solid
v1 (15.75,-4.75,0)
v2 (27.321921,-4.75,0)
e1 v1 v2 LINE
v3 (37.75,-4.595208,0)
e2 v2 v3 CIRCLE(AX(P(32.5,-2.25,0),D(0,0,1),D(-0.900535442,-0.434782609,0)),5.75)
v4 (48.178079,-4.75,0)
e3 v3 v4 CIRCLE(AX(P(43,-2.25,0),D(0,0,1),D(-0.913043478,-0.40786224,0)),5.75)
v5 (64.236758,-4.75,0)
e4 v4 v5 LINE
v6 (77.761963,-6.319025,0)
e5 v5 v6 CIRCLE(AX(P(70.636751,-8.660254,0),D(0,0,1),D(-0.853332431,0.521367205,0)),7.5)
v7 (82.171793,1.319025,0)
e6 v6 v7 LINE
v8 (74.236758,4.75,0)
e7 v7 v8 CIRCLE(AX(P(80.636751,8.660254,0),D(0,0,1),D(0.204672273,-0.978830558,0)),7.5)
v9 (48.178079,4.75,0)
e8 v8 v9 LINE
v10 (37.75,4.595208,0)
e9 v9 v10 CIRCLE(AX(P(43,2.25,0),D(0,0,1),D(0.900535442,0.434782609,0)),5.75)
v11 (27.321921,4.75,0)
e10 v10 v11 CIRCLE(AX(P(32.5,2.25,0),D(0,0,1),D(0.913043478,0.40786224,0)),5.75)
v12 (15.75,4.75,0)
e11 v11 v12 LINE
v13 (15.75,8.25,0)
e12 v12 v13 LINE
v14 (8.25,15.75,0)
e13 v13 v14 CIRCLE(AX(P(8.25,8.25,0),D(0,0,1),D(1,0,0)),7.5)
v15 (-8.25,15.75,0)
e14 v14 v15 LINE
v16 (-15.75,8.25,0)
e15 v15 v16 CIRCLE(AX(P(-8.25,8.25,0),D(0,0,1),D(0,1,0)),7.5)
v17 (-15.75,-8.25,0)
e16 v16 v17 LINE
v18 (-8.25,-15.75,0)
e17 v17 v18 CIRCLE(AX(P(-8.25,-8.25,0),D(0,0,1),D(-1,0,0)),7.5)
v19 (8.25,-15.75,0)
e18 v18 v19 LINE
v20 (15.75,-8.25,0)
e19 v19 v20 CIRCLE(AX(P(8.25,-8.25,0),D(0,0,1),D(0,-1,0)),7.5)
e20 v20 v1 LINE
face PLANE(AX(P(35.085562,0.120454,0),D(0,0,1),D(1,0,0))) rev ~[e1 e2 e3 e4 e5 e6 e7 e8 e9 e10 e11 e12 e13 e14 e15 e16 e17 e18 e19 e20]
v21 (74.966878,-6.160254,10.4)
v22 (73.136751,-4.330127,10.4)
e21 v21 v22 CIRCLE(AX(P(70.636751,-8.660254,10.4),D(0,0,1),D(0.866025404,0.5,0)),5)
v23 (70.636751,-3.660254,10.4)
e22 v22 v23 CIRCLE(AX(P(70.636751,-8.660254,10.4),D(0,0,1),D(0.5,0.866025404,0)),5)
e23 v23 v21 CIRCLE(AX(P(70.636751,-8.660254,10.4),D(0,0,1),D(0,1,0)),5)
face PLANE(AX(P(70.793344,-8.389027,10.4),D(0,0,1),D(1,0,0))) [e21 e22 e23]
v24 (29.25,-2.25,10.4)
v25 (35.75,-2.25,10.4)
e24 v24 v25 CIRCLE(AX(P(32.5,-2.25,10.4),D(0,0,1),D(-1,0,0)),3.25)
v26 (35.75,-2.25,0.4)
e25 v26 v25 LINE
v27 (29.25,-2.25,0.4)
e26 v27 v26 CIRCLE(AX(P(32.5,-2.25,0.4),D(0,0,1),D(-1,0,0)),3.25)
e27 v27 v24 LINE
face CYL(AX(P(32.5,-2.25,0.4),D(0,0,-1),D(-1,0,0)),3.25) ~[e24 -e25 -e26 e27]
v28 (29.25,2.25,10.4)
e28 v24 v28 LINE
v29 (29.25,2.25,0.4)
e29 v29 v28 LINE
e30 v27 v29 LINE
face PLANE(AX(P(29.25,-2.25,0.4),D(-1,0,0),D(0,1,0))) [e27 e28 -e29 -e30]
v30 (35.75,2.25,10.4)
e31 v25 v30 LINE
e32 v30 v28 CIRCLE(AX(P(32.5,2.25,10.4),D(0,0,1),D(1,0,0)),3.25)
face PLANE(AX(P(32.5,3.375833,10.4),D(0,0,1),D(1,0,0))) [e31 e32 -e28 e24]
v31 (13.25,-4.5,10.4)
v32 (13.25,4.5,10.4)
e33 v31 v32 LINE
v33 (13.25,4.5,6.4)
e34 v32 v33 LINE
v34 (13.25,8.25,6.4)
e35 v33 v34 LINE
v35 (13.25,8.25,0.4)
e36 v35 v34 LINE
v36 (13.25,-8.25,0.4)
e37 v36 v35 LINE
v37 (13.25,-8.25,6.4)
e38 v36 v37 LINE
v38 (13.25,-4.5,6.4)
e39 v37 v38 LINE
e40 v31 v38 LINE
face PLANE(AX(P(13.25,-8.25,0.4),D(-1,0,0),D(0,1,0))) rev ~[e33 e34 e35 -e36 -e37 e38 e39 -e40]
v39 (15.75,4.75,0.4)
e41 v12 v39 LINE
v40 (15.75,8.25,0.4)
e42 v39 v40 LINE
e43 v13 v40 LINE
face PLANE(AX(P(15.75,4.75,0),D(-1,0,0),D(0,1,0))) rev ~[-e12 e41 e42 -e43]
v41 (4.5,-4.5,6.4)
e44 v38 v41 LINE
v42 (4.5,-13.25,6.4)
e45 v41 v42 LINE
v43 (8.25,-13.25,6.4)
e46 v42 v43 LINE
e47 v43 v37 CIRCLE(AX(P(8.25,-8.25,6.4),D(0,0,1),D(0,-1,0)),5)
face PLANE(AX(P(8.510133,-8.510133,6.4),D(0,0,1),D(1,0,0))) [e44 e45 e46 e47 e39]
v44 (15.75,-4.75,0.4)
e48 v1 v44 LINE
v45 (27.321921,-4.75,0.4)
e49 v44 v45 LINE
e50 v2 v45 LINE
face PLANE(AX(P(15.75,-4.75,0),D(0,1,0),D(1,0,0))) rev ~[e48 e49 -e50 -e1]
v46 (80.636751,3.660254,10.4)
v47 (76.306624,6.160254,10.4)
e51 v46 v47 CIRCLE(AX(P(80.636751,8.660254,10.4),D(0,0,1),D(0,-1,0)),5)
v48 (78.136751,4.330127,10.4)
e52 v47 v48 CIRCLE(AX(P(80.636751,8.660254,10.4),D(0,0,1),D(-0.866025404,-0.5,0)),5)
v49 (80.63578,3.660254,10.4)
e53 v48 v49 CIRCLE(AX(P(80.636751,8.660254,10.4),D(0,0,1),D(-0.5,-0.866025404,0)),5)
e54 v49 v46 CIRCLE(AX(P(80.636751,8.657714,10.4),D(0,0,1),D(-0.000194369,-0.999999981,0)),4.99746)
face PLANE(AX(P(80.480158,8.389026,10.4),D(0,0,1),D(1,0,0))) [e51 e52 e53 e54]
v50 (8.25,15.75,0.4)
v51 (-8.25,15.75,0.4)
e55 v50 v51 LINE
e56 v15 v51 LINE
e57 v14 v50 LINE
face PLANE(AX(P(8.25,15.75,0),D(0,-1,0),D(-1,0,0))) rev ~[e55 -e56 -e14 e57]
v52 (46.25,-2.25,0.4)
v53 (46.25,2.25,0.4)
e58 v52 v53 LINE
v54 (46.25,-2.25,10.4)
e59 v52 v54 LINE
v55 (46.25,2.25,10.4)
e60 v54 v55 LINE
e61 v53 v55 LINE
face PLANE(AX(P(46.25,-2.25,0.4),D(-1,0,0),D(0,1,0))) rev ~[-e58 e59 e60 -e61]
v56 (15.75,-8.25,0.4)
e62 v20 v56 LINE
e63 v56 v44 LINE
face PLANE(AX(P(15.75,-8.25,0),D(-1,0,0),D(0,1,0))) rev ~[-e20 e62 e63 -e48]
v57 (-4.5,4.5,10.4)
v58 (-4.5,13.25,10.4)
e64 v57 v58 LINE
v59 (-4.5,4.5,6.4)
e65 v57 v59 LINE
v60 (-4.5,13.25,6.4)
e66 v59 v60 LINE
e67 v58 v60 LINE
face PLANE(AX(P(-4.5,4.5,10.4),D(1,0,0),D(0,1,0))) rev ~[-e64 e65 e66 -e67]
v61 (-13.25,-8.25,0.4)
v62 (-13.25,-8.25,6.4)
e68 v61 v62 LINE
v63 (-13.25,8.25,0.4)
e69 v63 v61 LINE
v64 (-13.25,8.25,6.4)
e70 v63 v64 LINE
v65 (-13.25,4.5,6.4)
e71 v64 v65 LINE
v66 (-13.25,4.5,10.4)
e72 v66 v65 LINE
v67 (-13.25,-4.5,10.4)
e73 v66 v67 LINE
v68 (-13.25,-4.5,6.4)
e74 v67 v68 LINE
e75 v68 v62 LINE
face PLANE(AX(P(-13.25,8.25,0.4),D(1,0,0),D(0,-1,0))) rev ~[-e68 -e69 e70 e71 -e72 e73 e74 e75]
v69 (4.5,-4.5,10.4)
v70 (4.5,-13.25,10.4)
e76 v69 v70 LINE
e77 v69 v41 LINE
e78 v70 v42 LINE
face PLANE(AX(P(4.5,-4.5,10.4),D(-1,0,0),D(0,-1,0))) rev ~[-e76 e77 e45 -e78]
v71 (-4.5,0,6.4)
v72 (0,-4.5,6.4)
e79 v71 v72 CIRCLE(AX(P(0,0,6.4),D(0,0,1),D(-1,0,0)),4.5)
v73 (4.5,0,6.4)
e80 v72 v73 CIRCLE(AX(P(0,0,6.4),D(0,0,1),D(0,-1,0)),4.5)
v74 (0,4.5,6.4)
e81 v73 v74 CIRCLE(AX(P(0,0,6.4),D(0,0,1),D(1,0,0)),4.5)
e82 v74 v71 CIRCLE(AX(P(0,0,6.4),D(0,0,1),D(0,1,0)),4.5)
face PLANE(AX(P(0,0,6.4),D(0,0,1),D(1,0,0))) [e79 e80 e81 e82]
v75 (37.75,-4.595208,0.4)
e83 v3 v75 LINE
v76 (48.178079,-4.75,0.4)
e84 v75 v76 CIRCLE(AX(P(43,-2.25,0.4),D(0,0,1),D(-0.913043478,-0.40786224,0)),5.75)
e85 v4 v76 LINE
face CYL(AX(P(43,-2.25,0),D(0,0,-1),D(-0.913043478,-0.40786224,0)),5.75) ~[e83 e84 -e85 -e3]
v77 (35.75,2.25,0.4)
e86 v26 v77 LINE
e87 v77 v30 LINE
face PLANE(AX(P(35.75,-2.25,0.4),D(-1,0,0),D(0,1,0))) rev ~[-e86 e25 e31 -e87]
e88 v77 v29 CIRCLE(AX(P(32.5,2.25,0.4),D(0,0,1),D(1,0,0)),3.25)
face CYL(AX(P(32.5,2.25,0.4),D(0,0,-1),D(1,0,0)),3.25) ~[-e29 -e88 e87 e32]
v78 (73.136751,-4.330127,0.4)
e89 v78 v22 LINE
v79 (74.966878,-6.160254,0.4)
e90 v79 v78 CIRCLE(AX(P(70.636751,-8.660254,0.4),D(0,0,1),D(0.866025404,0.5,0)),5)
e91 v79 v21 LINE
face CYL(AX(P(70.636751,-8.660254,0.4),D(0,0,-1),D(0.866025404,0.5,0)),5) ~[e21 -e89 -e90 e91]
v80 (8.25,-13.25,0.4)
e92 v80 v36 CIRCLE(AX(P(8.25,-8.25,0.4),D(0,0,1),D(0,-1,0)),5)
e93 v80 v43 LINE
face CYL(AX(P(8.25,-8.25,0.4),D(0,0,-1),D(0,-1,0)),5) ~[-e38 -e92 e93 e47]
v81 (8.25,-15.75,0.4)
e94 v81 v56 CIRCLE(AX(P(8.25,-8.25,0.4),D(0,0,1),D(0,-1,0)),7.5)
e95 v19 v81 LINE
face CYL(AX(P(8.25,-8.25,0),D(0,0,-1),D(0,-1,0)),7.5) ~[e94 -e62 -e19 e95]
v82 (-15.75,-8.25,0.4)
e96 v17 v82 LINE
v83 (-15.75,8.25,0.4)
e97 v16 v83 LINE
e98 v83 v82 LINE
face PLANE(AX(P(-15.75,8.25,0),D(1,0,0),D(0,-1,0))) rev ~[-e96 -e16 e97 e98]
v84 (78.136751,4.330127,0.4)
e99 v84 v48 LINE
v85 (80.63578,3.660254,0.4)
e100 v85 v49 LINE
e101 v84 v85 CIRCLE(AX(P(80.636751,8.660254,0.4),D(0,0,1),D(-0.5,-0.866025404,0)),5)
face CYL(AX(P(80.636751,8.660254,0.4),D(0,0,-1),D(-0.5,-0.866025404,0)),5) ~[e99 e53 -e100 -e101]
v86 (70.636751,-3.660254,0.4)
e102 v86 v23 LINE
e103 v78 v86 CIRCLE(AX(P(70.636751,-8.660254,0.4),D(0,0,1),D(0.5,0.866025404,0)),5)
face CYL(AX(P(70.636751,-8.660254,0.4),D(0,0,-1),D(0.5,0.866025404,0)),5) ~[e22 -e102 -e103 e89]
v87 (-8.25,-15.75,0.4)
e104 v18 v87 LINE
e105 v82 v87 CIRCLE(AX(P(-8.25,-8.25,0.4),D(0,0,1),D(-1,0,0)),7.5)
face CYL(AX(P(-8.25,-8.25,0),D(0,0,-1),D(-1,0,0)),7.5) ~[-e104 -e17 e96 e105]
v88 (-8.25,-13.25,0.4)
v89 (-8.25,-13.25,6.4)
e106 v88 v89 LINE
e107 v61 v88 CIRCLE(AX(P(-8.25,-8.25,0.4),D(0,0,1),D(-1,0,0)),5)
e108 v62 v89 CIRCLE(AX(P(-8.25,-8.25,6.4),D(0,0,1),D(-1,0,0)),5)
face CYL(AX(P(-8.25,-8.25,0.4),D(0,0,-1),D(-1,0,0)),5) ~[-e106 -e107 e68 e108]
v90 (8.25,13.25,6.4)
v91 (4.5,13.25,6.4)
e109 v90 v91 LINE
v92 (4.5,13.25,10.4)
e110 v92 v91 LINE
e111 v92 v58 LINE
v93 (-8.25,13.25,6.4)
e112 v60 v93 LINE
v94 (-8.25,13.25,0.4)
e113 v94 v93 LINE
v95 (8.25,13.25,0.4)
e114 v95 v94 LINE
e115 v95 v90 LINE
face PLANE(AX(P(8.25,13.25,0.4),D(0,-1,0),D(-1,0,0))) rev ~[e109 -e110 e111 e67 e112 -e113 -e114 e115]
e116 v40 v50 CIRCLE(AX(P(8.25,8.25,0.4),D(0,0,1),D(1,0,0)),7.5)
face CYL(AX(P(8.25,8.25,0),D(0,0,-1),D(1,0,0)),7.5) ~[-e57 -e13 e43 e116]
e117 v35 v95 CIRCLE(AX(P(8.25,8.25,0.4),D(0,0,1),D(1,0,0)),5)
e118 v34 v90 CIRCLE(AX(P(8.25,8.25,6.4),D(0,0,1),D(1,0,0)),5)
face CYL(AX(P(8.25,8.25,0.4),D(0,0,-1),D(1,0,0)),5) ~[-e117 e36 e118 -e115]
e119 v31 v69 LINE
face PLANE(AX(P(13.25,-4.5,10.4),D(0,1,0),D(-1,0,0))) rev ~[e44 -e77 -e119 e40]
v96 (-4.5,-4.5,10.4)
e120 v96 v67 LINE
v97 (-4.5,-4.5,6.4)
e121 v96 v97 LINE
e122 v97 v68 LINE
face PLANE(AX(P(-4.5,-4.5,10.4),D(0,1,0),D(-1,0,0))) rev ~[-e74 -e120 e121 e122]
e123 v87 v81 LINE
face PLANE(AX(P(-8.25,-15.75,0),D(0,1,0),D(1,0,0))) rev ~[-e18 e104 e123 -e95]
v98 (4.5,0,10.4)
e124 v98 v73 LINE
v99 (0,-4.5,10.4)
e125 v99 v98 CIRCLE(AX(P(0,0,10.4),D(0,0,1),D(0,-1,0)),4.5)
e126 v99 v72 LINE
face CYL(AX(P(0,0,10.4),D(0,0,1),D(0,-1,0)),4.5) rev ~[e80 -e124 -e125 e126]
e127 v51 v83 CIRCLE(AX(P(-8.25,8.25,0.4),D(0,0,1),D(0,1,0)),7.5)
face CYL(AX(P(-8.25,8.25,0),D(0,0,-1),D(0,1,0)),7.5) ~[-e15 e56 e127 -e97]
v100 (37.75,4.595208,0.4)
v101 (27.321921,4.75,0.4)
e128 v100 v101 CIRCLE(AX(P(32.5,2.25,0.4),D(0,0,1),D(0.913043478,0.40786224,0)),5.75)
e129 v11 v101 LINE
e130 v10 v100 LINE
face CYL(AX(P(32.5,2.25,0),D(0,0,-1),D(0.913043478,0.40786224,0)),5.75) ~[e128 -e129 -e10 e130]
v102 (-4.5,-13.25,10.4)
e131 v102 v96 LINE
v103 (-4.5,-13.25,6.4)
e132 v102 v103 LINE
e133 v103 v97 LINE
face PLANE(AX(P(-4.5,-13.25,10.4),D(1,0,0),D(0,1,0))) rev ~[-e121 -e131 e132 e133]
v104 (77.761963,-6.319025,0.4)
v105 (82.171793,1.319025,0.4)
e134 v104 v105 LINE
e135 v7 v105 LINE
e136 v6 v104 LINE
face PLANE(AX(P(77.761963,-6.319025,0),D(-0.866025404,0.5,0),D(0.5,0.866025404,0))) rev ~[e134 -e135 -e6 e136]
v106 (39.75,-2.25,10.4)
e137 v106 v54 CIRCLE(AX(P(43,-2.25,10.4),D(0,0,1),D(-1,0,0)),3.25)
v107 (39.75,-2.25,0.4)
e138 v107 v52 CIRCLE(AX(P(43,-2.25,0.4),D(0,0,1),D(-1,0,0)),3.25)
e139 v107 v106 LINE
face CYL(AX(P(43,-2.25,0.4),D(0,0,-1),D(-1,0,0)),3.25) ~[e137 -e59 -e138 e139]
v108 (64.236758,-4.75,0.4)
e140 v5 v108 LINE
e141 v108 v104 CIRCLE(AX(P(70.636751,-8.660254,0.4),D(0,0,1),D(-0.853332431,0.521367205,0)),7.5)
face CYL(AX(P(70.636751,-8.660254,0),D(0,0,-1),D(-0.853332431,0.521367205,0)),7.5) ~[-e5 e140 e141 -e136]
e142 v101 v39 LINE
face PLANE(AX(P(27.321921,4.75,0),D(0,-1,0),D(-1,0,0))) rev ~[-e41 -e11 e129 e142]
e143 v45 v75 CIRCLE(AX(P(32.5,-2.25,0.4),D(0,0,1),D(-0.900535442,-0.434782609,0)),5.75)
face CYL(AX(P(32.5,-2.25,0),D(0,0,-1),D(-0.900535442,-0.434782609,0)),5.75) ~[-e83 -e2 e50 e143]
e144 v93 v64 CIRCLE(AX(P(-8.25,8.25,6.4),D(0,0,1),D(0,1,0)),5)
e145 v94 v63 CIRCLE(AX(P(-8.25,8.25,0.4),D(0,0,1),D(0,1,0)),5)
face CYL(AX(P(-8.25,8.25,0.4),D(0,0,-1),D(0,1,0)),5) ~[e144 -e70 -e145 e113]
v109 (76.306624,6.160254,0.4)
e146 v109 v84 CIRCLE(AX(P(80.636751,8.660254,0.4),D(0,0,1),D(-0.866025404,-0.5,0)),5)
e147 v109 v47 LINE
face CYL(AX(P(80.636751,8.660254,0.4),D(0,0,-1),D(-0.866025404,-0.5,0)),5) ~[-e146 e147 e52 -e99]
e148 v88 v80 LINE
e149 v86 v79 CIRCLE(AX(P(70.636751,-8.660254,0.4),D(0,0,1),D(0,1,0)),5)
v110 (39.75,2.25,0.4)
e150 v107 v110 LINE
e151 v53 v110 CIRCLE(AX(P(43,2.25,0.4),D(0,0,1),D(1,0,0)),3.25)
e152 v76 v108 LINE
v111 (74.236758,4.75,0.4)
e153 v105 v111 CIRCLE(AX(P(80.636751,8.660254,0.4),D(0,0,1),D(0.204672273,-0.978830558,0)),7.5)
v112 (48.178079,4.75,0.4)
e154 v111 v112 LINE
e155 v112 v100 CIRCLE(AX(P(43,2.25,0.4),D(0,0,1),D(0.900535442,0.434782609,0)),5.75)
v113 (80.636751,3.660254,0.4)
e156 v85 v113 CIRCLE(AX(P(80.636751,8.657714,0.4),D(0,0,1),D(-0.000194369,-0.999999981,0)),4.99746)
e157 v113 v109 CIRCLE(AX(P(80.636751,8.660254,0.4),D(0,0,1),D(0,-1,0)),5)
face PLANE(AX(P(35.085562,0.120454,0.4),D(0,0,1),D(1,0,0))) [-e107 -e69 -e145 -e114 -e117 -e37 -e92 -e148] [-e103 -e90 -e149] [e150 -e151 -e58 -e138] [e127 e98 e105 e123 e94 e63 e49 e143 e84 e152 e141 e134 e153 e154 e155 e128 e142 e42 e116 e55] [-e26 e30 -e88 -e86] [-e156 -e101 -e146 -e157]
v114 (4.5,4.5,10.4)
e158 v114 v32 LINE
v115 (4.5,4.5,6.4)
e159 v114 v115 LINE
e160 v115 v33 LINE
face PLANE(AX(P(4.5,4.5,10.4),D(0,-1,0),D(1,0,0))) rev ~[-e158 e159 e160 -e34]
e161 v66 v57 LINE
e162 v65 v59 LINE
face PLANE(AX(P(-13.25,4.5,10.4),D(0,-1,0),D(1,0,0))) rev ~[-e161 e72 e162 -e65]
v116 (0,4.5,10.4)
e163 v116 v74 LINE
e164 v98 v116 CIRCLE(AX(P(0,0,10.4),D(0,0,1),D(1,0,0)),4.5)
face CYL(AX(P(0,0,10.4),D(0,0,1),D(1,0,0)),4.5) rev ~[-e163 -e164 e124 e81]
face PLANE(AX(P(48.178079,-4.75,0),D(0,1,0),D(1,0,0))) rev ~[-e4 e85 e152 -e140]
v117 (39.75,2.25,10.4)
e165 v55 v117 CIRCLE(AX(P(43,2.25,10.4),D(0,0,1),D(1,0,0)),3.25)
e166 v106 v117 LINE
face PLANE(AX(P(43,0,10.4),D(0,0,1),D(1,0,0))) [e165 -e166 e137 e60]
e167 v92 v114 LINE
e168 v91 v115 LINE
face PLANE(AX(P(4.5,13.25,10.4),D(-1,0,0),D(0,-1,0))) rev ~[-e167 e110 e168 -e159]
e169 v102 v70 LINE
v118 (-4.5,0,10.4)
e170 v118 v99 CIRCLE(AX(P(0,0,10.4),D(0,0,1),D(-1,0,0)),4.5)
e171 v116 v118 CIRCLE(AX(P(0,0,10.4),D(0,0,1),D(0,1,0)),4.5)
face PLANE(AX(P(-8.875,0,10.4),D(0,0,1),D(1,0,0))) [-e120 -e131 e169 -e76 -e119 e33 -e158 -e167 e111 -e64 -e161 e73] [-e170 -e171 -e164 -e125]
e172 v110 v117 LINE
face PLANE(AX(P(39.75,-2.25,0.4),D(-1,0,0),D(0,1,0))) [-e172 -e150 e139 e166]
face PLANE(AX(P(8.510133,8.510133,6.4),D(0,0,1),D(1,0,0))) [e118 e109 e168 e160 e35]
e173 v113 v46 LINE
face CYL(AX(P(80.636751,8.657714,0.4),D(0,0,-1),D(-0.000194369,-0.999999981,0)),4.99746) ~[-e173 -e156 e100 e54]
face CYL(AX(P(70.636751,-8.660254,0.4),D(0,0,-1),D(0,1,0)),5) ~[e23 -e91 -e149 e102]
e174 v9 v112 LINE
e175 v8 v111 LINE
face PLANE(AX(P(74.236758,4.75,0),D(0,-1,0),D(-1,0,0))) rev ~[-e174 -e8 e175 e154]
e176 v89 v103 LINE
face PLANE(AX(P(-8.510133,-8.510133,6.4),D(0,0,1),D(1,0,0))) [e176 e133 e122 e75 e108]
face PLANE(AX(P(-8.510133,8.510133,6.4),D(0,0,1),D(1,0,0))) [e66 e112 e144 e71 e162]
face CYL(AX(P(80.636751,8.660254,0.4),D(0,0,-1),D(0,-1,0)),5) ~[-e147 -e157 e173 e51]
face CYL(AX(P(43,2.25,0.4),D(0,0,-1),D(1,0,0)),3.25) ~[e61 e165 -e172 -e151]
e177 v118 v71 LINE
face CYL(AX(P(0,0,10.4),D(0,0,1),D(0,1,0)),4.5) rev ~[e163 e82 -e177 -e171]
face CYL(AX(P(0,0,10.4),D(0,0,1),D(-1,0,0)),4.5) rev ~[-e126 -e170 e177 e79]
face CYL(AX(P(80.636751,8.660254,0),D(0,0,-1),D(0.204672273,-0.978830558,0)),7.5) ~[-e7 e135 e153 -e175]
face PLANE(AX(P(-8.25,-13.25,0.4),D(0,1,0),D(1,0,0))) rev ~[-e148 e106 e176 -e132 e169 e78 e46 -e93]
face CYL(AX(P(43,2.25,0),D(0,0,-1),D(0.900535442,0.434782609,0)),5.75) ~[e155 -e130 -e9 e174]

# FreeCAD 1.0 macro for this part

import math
import FreeCAD as App
import Part
import Sketcher

V = App.Vector
Q = App.Units.Quantity

doc = App.newDocument("Part")
body = doc.addObject("PartDesign::Body", "Body")

sketch1 = body.newObject("Sketcher::SketchObject", "Sketch")
sketch1.AttachmentSupport = (doc.getObject("XY_Plane"), [""])
sketch1.MapMode = "FlatFace"
sketch1.addGeometry([
    Part.LineSegment(V(15.8, 4.8, 0), V(15.8, 8.2, 0)),
    Part.ArcOfCircle(Part.Circle(V(8.2, 8.2, 0), V(0, 0, 1), 7.5), math.radians(0), math.radians(90)),
    Part.LineSegment(V(8.2, 15.8, 0), V(-8.2, 15.8, 0)),
    Part.ArcOfCircle(Part.Circle(V(-8.2, 8.2, 0), V(0, 0, 1), 7.5), math.radians(90), math.radians(180)),
    Part.LineSegment(V(-15.8, 8.2, 0), V(-15.8, -8.2, 0)),
    Part.ArcOfCircle(Part.Circle(V(-8.2, -8.2, 0), V(0, 0, 1), 7.5), math.radians(180), math.radians(270)),
    Part.LineSegment(V(-8.2, -15.8, 0), V(8.2, -15.8, 0)),
    Part.ArcOfCircle(Part.Circle(V(8.2, -8.2, 0), V(0, 0, 1), 7.5), math.radians(-90), math.radians(0)),
    Part.LineSegment(V(15.8, -8.2, 0), V(15.8, -4.8, 0)),
    Part.LineSegment(V(15.8, -4.8, 0), V(27.3, -4.8, 0)),
    Part.ArcOfCircle(Part.Circle(V(32.5, -2.2, 0), V(0, 0, 1), 5.8), math.radians(-154), math.radians(-24)),
    Part.ArcOfCircle(Part.Circle(V(43, -2.2, 0), V(0, 0, 1), 5.8), math.radians(-156), math.radians(-26)),
    Part.LineSegment(V(48.2, -4.8, 0), V(64.2, -4.8, 0)),
    Part.ArcOfCircle(Part.Circle(V(70.6, -8.7, 0), V(0, 0, 1), 7.5), math.radians(149), math.radians(378)),
    Part.LineSegment(V(77.8, -6.3, 0), V(82.2, 1.3, 0)),
    Part.ArcOfCircle(Part.Circle(V(80.6, 8.7, 0), V(0, 0, 1), 7.5), math.radians(-78), math.radians(211)),
    Part.LineSegment(V(74.2, 4.8, 0), V(48.2, 4.8, 0)),
    Part.ArcOfCircle(Part.Circle(V(43, 2.2, 0), V(0, 0, 1), 5.8), math.radians(26), math.radians(156)),
    Part.ArcOfCircle(Part.Circle(V(32.5, 2.2, 0), V(0, 0, 1), 5.8), math.radians(24), math.radians(154)),
    Part.LineSegment(V(27.3, 4.8, 0), V(15.8, 4.8, 0)),
], False)
sketch1.addConstraint([
    Sketcher.Constraint("Tangent", 0, 2, 1, 1),
    Sketcher.Constraint("Tangent", 1, 2, 2, 1),
    Sketcher.Constraint("Tangent", 2, 2, 3, 1),
    Sketcher.Constraint("Tangent", 3, 2, 4, 1),
    Sketcher.Constraint("Tangent", 4, 2, 5, 1),
    Sketcher.Constraint("Tangent", 5, 2, 6, 1),
    Sketcher.Constraint("Tangent", 6, 2, 7, 1),
    Sketcher.Constraint("Tangent", 7, 2, 8, 1),
    Sketcher.Constraint("Coincident", 8, 2, 9, 1),
    Sketcher.Constraint("Coincident", 9, 2, 10, 1),
    Sketcher.Constraint("Coincident", 10, 2, 11, 1),
    Sketcher.Constraint("Coincident", 11, 2, 12, 1),
    Sketcher.Constraint("Coincident", 12, 2, 13, 1),
    Sketcher.Constraint("Coincident", 13, 2, 14, 1),
    Sketcher.Constraint("Coincident", 14, 2, 15, 1),
    Sketcher.Constraint("Coincident", 15, 2, 16, 1),
    Sketcher.Constraint("Coincident", 16, 2, 17, 1),
    Sketcher.Constraint("Coincident", 17, 2, 18, 1),
    Sketcher.Constraint("Coincident", 18, 2, 19, 1),
    Sketcher.Constraint("Coincident", 19, 2, 0, 1),
    Sketcher.Constraint("Vertical", 0),
    Sketcher.Constraint("Horizontal", 2),
    Sketcher.Constraint("Vertical", 4),
    Sketcher.Constraint("Horizontal", 6),
    Sketcher.Constraint("Vertical", 8),
    Sketcher.Constraint("Horizontal", 9),
    Sketcher.Constraint("Horizontal", 12),
    Sketcher.Constraint("Horizontal", 16),
    Sketcher.Constraint("Horizontal", 19),
    Sketcher.Constraint("Equal", 1, 3),
    Sketcher.Constraint("Equal", 3, 5),
    Sketcher.Constraint("Equal", 5, 7),
    Sketcher.Constraint("Equal", 10, 11),
    Sketcher.Constraint("Equal", 7, 13),
    Sketcher.Constraint("Equal", 13, 15),
    Sketcher.Constraint("Equal", 11, 17),
    Sketcher.Constraint("Equal", 17, 18),
    Sketcher.Constraint("Symmetric", 1, 3, 5, 3, -1, 1),
    Sketcher.Constraint("Symmetric", 11, 3, 17, 3, -1),
    Sketcher.Constraint("Symmetric", 10, 3, 18, 3, -1),
    Sketcher.Constraint("Symmetric", 8, 2, 19, 2, -1),
    Sketcher.Constraint("Horizontal", 10, 3, 11, 3),
    Sketcher.Constraint("Horizontal", 9, 2, 11, 2),
    Sketcher.Constraint("Horizontal", 16, 2, 18, 2),
    Sketcher.Constraint("Equal", 6, 4),
    Sketcher.Constraint("Radius", 1, 7.5),
    Sketcher.Constraint("Angle", 14, Q("60 deg")),
    Sketcher.Constraint("Radius", 10, 5.75),
    Sketcher.Constraint("DistanceX", 2, 2, 2, 1, 16.5),
    Sketcher.Constraint("DistanceY", 0, 1, 0, 2, 3.5),
    Sketcher.Constraint("DistanceX", -1, 1, 11, 3, 43.0),
    Sketcher.Constraint("DistanceY", 7, 3, 10, 3, 6.0),
    Sketcher.Constraint("DistanceX", 13, 3, 15, 3, 10.0),
    Sketcher.Constraint("DistanceX", 12, 2, 15, 2, 10.0),
    Sketcher.Constraint("DistanceX", -1, 1, 10, 3, 32.5),
    Sketcher.Constraint("DistanceX", 12, 1, 12, 2, 16.058679),
    Sketcher.Constraint("Distance", 14, 8.81966),
    Sketcher.Constraint("DistanceX", -1, 1, 13, 3, 70.636751),
])
pad1 = body.newObject("PartDesign::Pad", "Pad")
pad1.Profile = sketch1
pad1.Length = 0.4

sketch2 = body.newObject("Sketcher::SketchObject", "Sketch001")
sketch2.AttachmentSupport = (doc.getObject("XY_Plane"), [""])
sketch2.MapMode = "FlatFace"
sketch2.AttachmentOffset = App.Placement(V(0, 0, 0.4), App.Rotation())
sketch2.addGeometry([
    Part.LineSegment(V(13.25, -8.25, 0), V(13.25, 8.25, 0)),
    Part.ArcOfCircle(Part.Circle(V(8.25, 8.25, 0), V(0, 0, 1), 5), math.radians(0), math.radians(90)),
    Part.LineSegment(V(8.25, 13.25, 0), V(-8.25, 13.25, 0)),
    Part.ArcOfCircle(Part.Circle(V(-8.25, 8.25, 0), V(0, 0, 1), 5), math.radians(90), math.radians(180)),
    Part.LineSegment(V(-13.25, 8.25, 0), V(-13.25, -8.25, 0)),
    Part.ArcOfCircle(Part.Circle(V(-8.25, -8.25, 0), V(0, 0, 1), 5), math.radians(180), math.radians(270)),
    Part.LineSegment(V(-8.25, -13.25, 0), V(8.25, -13.25, 0)),
    Part.ArcOfCircle(Part.Circle(V(8.25, -8.25, 0), V(0, 0, 1), 5), math.radians(-90), math.radians(0)),
    Part.ArcOfCircle(Part.Circle(V(32.5, 2.25, 0), V(0, 0, 1), 3.25), math.radians(0), math.radians(180)),
    Part.LineSegment(V(29.25, 2.25, 0), V(29.25, -2.25, 0)),
    Part.ArcOfCircle(Part.Circle(V(32.5, -2.25, 0), V(0, 0, 1), 3.25), math.radians(180), math.radians(360)),
    Part.LineSegment(V(35.75, -2.25, 0), V(35.75, 2.25, 0)),
    Part.LineSegment(V(39.75, 2.25, 0), V(39.75, -2.25, 0)),
    Part.ArcOfCircle(Part.Circle(V(43, -2.25, 0), V(0, 0, 1), 3.25), math.radians(180), math.radians(360)),
    Part.LineSegment(V(46.25, -2.25, 0), V(46.25, 2.25, 0)),
    Part.ArcOfCircle(Part.Circle(V(43, 2.25, 0), V(0, 0, 1), 3.25), math.radians(0), math.radians(180)),
    Part.ArcOfCircle(Part.Circle(V(70.636751, -8.660254, 0), V(0, 0, 1), 5), math.radians(60), math.radians(90)),
    Part.ArcOfCircle(Part.Circle(V(70.636751, -8.660254, 0), V(0, 0, 1), 5), math.radians(90), math.radians(390)),
    Part.ArcOfCircle(Part.Circle(V(70.636751, -8.660254, 0), V(0, 0, 1), 5), math.radians(30), math.radians(60)),
    Part.ArcOfCircle(Part.Circle(V(80.636751, 8.660254, 0), V(0, 0, 1), 5), math.radians(-90), math.radians(210)),
    Part.ArcOfCircle(Part.Circle(V(80.636751, 8.660254, 0), V(0, 0, 1), 5), math.radians(-150), math.radians(-120)),
    Part.ArcOfCircle(Part.Circle(V(80.636751, 8.660254, 0), V(0, 0, 1), 5), math.radians(-120), math.radians(-90.011131)),
    Part.ArcOfCircle(Part.Circle(V(80.636751, 8.657714, 0), V(0, 0, 1), 4.99746), math.radians(-90.011137), math.radians(-90)),
], False)
sketch2.addConstraint([
    Sketcher.Constraint("Coincident", 0, 2, 1, 1),
    Sketcher.Constraint("Coincident", 1, 2, 2, 1),
    Sketcher.Constraint("Coincident", 2, 2, 3, 1),
    Sketcher.Constraint("Coincident", 3, 2, 4, 1),
    Sketcher.Constraint("Coincident", 4, 2, 5, 1),
    Sketcher.Constraint("Coincident", 5, 2, 6, 1),
    Sketcher.Constraint("Coincident", 6, 2, 7, 1),
    Sketcher.Constraint("Coincident", 7, 2, 0, 1),
    Sketcher.Constraint("Coincident", 8, 2, 9, 1),
    Sketcher.Constraint("Coincident", 9, 2, 10, 1),
    Sketcher.Constraint("Coincident", 10, 2, 11, 1),
    Sketcher.Constraint("Coincident", 11, 2, 8, 1),
    Sketcher.Constraint("Coincident", 12, 2, 13, 1),
    Sketcher.Constraint("Coincident", 13, 2, 14, 1),
    Sketcher.Constraint("Coincident", 14, 2, 15, 1),
    Sketcher.Constraint("Coincident", 15, 2, 12, 1),
    Sketcher.Constraint("Coincident", 16, 2, 17, 1),
    Sketcher.Constraint("Coincident", 17, 2, 18, 1),
    Sketcher.Constraint("Coincident", 18, 2, 16, 1),
    Sketcher.Constraint("Coincident", 19, 2, 20, 1),
    Sketcher.Constraint("Coincident", 20, 2, 21, 1),
    Sketcher.Constraint("Coincident", 21, 2, 22, 1),
    Sketcher.Constraint("Coincident", 22, 2, 19, 1),
    Sketcher.Constraint("Vertical", 0),
    Sketcher.Constraint("Horizontal", 2),
    Sketcher.Constraint("Vertical", 4),
    Sketcher.Constraint("Horizontal", 6),
    Sketcher.Constraint("Vertical", 9),
    Sketcher.Constraint("Vertical", 11),
    Sketcher.Constraint("Vertical", 12),
    Sketcher.Constraint("Vertical", 14),
    Sketcher.Constraint("Coincident", 17, 3, 16, 3),
    Sketcher.Constraint("Coincident", 20, 3, 19, 3),
    Sketcher.Constraint("Radius", 1, 5.0),
    Sketcher.Constraint("Radius", 3, 5.0),
    Sketcher.Constraint("Radius", 5, 5.0),
    Sketcher.Constraint("Radius", 7, 5.0),
    Sketcher.Constraint("Radius", 16, 5.0),
    Sketcher.Constraint("Radius", 18, 5.0),
    Sketcher.Constraint("Radius", 19, 5.0),
    Sketcher.Constraint("Radius", 21, 5.0),
    Sketcher.Constraint("Radius", 8, 3.25),
    Sketcher.Constraint("Radius", 13, 3.25),
    Sketcher.Constraint("DistanceX", 2, 2, 2, 1, 16.5),
    Sketcher.Constraint("DistanceX", 6, 1, 6, 2, 16.5),
    Sketcher.Constraint("DistanceY", 0, 1, 0, 2, 16.5),
    Sketcher.Constraint("DistanceY", 4, 2, 4, 1, 16.5),
    Sketcher.Constraint("DistanceY", 9, 2, 9, 1, 4.5),
    Sketcher.Constraint("DistanceY", 11, 1, 11, 2, 4.5),
    Sketcher.Constraint("DistanceY", 12, 2, 12, 1, 4.5),
    Sketcher.Constraint("DistanceY", 14, 1, 14, 2, 4.5),
    Sketcher.Constraint("DistanceX", -1, 1, 13, 3, 43.0),
    Sketcher.Constraint("DistanceY", 8, 3, 1, 3, 6.0),
    Sketcher.Constraint("DistanceY", 7, 3, 10, 3, 6.0),
    Sketcher.Constraint("DistanceY", 7, 3, 13, 3, 6.0),
    Sketcher.Constraint("DistanceY", 15, 3, 1, 3, 6.0),
    Sketcher.Constraint("DistanceX", 16, 3, 19, 3, 10.0),
    Sketcher.Constraint("DistanceX", 16, 3, 22, 3, 10.0),
    Sketcher.Constraint("DistanceY", 8, 3, 0, 2, 6.0),
    Sketcher.Constraint("DistanceX", 1, 2, 0, 2, 5.0),
    Sketcher.Constraint("DistanceX", 3, 2, 2, 2, 5.0),
    Sketcher.Constraint("DistanceY", 3, 2, 2, 2, 5.0),
    Sketcher.Constraint("DistanceX", 4, 2, 5, 2, 5.0),
    Sketcher.Constraint("DistanceY", 5, 2, 4, 2, 5.0),
    Sketcher.Constraint("DistanceX", 0, 2, 8, 2, 16.0),
    Sketcher.Constraint("DistanceY", 8, 2, 0, 2, 6.0),
    Sketcher.Constraint("DistanceX", 10, 2, 12, 2, 4.0),
    Sketcher.Constraint("DistanceX", 16, 2, 22, 3, 10.0),
    Sketcher.Constraint("DistanceY", 10, 2, 8, 3, 4.5),
    Sketcher.Constraint("DistanceY", 12, 2, 15, 3, 4.5),
    Sketcher.Constraint("DistanceY", 13, 2, 15, 3, 4.5),
    Sketcher.Constraint("DistanceY", 16, 3, 17, 2, 2.5),
    Sketcher.Constraint("DistanceX", 16, 2, 18, 2, 2.5),
    Sketcher.Constraint("DistanceY", 19, 2, 19, 3, 2.5),
    Sketcher.Constraint("DistanceX", 20, 2, 22, 3, 2.5),
    Sketcher.Constraint("DistanceX", 20, 2, 22, 2, 2.5),
    Sketcher.Constraint("DistanceY", -1, 1, 1, 3, 8.25),
    Sketcher.Constraint("Radius", 22, 4.99746),
    Sketcher.Constraint("DistanceX", -1, 1, 16, 3, 70.636751),
    Sketcher.Constraint("DistanceX", -1, 1, 21, 2, 80.63578),
    Sketcher.Constraint("DistanceY", 16, 3, 19, 3, 17.320508),
    Sketcher.Constraint("DistanceY", 16, 3, -1, 1, 8.660254),
])
pad2 = body.newObject("PartDesign::Pad", "Pad001")
pad2.Profile = sketch2
pad2.Length = 10

sketch3 = body.newObject("Sketcher::SketchObject", "Sketch002")
sketch3.AttachmentSupport = (doc.getObject("XY_Plane"), [""])
sketch3.MapMode = "FlatFace"
sketch3.AttachmentOffset = App.Placement(V(0, 0, 10.4), App.Rotation())
sketch3.addGeometry([
    Part.LineSegment(V(13.2, -4.5, 0), V(4.5, -4.5, 0)),
    Part.LineSegment(V(4.5, -4.5, 0), V(4.5, -13.2, 0)),
    Part.LineSegment(V(4.5, -13.2, 0), V(8.2, -13.2, 0)),
    Part.ArcOfCircle(Part.Circle(V(8.2, -8.2, 0), V(0, 0, 1), 5), math.radians(-90), math.radians(0)),
    Part.LineSegment(V(13.2, -8.2, 0), V(13.2, -4.5, 0)),
    Part.LineSegment(V(-4.5, -4.5, 0), V(-13.2, -4.5, 0)),
    Part.LineSegment(V(-13.2, -4.5, 0), V(-13.2, -8.2, 0)),
    Part.ArcOfCircle(Part.Circle(V(-8.2, -8.2, 0), V(0, 0, 1), 5), math.radians(180), math.radians(270)),
    Part.LineSegment(V(-8.2, -13.2, 0), V(-4.5, -13.2, 0)),
    Part.LineSegment(V(-4.5, -13.2, 0), V(-4.5, -4.5, 0)),
    Part.LineSegment(V(-4.5, 13.2, 0), V(-8.2, 13.2, 0)),
    Part.ArcOfCircle(Part.Circle(V(-8.2, 8.2, 0), V(0, 0, 1), 5), math.radians(90), math.radians(180)),
    Part.LineSegment(V(-13.2, 8.2, 0), V(-13.2, 4.5, 0)),
    Part.LineSegment(V(-13.2, 4.5, 0), V(-4.5, 4.5, 0)),
    Part.LineSegment(V(-4.5, 4.5, 0), V(-4.5, 13.2, 0)),
    Part.LineSegment(V(8.2, 13.2, 0), V(4.5, 13.2, 0)),
    Part.LineSegment(V(4.5, 13.2, 0), V(4.5, 4.5, 0)),
    Part.LineSegment(V(4.5, 4.5, 0), V(13.2, 4.5, 0)),
    Part.LineSegment(V(13.2, 4.5, 0), V(13.2, 8.2, 0)),
    Part.ArcOfCircle(Part.Circle(V(8.2, 8.2, 0), V(0, 0, 1), 5), math.radians(0), math.radians(90)),
    Part.ArcOfCircle(Part.Circle(V(0, 0, 0), V(0, 0, 1), 4.5), math.radians(90), math.radians(180)),
    Part.ArcOfCircle(Part.Circle(V(0, 0, 0), V(0, 0, 1), 4.5), math.radians(180), math.radians(270)),
    Part.ArcOfCircle(Part.Circle(V(0, 0, 0), V(0, 0, 1), 4.5), math.radians(-90), math.radians(0)),
    Part.ArcOfCircle(Part.Circle(V(0, 0, 0), V(0, 0, 1), 4.5), math.radians(0), math.radians(90)),
], False)
sketch3.addConstraint([
    Sketcher.Constraint("Coincident", 0, 2, 1, 1),
    Sketcher.Constraint("Coincident", 1, 2, 2, 1),
    Sketcher.Constraint("Tangent", 2, 2, 3, 1),
    Sketcher.Constraint("Tangent", 3, 2, 4, 1),
    Sketcher.Constraint("Coincident", 4, 2, 0, 1),
    Sketcher.Constraint("Coincident", 5, 2, 6, 1),
    Sketcher.Constraint("Tangent", 6, 2, 7, 1),
    Sketcher.Constraint("Tangent", 7, 2, 8, 1),
    Sketcher.Constraint("Coincident", 8, 2, 9, 1),
    Sketcher.Constraint("Coincident", 9, 2, 5, 1),
    Sketcher.Constraint("Tangent", 10, 2, 11, 1),
    Sketcher.Constraint("Tangent", 11, 2, 12, 1),
    Sketcher.Constraint("Coincident", 12, 2, 13, 1),
    Sketcher.Constraint("Coincident", 13, 2, 14, 1),
    Sketcher.Constraint("Coincident", 14, 2, 10, 1),
    Sketcher.Constraint("Coincident", 15, 2, 16, 1),
    Sketcher.Constraint("Coincident", 16, 2, 17, 1),
    Sketcher.Constraint("Coincident", 17, 2, 18, 1),
    Sketcher.Constraint("Tangent", 18, 2, 19, 1),
    Sketcher.Constraint("Tangent", 19, 2, 15, 1),
    Sketcher.Constraint("Tangent", 20, 2, 21, 1),
    Sketcher.Constraint("Tangent", 21, 2, 22, 1),
    Sketcher.Constraint("Tangent", 22, 2, 23, 1),
    Sketcher.Constraint("Tangent", 23, 2, 20, 1),
    Sketcher.Constraint("Horizontal", 0),
    Sketcher.Constraint("Vertical", 1),
    Sketcher.Constraint("Horizontal", 2),
    Sketcher.Constraint("Vertical", 4),
    Sketcher.Constraint("Horizontal", 5),
    Sketcher.Constraint("Vertical", 6),
    Sketcher.Constraint("Horizontal", 8),
    Sketcher.Constraint("Vertical", 9),
    Sketcher.Constraint("Horizontal", 10),
    Sketcher.Constraint("Vertical", 12),
    Sketcher.Constraint("Horizontal", 13),
    Sketcher.Constraint("Vertical", 14),
    Sketcher.Constraint("Horizontal", 15),
    Sketcher.Constraint("Vertical", 16),
    Sketcher.Constraint("Horizontal", 17),
    Sketcher.Constraint("Vertical", 18),
    Sketcher.Constraint("Coincident", 20, 3, -1, 1),
    Sketcher.Constraint("Equal", 3, 7),
    Sketcher.Constraint("Equal", 7, 11),
    Sketcher.Constraint("Equal", 11, 19),
    Sketcher.Constraint("Equal", 20, 21),
    Sketcher.Constraint("Symmetric", 3, 3, 11, 3, -1, 1),
    Sketcher.Constraint("Symmetric", 7, 3, 19, 3, -1, 1),
    Sketcher.Constraint("Symmetric", 0, 2, 13, 2, -1, 1),
    Sketcher.Constraint("Symmetric", 9, 2, 16, 2, -1, 1),
    Sketcher.Constraint("Symmetric", 3, 3, 7, 3, -2),
    Sketcher.Constraint("Symmetric", 0, 2, 9, 2, -2),
    Sketcher.Constraint("PointOnObject", 20, 2, -1),
    Sketcher.Constraint("PointOnObject", 21, 2, -2),
    Sketcher.Constraint("PointOnObject", 22, 2, -1),
    Sketcher.Constraint("PointOnObject", 23, 2, -2),
    Sketcher.Constraint("Horizontal", 9, 2, 21, 2),
    Sketcher.Constraint("Vertical", 14, 2, 20, 2),
    Sketcher.Constraint("Equal", 17, 1),
    Sketcher.Constraint("Radius", 3, 5.0),
    Sketcher.Constraint("Radius", 20, 4.5),
    Sketcher.Constraint("DistanceX", 0, 2, 0, 1, 8.75),
])
pocket1 = body.newObject("PartDesign::Pocket", "Pocket")
pocket1.Profile = sketch3
pocket1.Length = 4

doc.recompute()
